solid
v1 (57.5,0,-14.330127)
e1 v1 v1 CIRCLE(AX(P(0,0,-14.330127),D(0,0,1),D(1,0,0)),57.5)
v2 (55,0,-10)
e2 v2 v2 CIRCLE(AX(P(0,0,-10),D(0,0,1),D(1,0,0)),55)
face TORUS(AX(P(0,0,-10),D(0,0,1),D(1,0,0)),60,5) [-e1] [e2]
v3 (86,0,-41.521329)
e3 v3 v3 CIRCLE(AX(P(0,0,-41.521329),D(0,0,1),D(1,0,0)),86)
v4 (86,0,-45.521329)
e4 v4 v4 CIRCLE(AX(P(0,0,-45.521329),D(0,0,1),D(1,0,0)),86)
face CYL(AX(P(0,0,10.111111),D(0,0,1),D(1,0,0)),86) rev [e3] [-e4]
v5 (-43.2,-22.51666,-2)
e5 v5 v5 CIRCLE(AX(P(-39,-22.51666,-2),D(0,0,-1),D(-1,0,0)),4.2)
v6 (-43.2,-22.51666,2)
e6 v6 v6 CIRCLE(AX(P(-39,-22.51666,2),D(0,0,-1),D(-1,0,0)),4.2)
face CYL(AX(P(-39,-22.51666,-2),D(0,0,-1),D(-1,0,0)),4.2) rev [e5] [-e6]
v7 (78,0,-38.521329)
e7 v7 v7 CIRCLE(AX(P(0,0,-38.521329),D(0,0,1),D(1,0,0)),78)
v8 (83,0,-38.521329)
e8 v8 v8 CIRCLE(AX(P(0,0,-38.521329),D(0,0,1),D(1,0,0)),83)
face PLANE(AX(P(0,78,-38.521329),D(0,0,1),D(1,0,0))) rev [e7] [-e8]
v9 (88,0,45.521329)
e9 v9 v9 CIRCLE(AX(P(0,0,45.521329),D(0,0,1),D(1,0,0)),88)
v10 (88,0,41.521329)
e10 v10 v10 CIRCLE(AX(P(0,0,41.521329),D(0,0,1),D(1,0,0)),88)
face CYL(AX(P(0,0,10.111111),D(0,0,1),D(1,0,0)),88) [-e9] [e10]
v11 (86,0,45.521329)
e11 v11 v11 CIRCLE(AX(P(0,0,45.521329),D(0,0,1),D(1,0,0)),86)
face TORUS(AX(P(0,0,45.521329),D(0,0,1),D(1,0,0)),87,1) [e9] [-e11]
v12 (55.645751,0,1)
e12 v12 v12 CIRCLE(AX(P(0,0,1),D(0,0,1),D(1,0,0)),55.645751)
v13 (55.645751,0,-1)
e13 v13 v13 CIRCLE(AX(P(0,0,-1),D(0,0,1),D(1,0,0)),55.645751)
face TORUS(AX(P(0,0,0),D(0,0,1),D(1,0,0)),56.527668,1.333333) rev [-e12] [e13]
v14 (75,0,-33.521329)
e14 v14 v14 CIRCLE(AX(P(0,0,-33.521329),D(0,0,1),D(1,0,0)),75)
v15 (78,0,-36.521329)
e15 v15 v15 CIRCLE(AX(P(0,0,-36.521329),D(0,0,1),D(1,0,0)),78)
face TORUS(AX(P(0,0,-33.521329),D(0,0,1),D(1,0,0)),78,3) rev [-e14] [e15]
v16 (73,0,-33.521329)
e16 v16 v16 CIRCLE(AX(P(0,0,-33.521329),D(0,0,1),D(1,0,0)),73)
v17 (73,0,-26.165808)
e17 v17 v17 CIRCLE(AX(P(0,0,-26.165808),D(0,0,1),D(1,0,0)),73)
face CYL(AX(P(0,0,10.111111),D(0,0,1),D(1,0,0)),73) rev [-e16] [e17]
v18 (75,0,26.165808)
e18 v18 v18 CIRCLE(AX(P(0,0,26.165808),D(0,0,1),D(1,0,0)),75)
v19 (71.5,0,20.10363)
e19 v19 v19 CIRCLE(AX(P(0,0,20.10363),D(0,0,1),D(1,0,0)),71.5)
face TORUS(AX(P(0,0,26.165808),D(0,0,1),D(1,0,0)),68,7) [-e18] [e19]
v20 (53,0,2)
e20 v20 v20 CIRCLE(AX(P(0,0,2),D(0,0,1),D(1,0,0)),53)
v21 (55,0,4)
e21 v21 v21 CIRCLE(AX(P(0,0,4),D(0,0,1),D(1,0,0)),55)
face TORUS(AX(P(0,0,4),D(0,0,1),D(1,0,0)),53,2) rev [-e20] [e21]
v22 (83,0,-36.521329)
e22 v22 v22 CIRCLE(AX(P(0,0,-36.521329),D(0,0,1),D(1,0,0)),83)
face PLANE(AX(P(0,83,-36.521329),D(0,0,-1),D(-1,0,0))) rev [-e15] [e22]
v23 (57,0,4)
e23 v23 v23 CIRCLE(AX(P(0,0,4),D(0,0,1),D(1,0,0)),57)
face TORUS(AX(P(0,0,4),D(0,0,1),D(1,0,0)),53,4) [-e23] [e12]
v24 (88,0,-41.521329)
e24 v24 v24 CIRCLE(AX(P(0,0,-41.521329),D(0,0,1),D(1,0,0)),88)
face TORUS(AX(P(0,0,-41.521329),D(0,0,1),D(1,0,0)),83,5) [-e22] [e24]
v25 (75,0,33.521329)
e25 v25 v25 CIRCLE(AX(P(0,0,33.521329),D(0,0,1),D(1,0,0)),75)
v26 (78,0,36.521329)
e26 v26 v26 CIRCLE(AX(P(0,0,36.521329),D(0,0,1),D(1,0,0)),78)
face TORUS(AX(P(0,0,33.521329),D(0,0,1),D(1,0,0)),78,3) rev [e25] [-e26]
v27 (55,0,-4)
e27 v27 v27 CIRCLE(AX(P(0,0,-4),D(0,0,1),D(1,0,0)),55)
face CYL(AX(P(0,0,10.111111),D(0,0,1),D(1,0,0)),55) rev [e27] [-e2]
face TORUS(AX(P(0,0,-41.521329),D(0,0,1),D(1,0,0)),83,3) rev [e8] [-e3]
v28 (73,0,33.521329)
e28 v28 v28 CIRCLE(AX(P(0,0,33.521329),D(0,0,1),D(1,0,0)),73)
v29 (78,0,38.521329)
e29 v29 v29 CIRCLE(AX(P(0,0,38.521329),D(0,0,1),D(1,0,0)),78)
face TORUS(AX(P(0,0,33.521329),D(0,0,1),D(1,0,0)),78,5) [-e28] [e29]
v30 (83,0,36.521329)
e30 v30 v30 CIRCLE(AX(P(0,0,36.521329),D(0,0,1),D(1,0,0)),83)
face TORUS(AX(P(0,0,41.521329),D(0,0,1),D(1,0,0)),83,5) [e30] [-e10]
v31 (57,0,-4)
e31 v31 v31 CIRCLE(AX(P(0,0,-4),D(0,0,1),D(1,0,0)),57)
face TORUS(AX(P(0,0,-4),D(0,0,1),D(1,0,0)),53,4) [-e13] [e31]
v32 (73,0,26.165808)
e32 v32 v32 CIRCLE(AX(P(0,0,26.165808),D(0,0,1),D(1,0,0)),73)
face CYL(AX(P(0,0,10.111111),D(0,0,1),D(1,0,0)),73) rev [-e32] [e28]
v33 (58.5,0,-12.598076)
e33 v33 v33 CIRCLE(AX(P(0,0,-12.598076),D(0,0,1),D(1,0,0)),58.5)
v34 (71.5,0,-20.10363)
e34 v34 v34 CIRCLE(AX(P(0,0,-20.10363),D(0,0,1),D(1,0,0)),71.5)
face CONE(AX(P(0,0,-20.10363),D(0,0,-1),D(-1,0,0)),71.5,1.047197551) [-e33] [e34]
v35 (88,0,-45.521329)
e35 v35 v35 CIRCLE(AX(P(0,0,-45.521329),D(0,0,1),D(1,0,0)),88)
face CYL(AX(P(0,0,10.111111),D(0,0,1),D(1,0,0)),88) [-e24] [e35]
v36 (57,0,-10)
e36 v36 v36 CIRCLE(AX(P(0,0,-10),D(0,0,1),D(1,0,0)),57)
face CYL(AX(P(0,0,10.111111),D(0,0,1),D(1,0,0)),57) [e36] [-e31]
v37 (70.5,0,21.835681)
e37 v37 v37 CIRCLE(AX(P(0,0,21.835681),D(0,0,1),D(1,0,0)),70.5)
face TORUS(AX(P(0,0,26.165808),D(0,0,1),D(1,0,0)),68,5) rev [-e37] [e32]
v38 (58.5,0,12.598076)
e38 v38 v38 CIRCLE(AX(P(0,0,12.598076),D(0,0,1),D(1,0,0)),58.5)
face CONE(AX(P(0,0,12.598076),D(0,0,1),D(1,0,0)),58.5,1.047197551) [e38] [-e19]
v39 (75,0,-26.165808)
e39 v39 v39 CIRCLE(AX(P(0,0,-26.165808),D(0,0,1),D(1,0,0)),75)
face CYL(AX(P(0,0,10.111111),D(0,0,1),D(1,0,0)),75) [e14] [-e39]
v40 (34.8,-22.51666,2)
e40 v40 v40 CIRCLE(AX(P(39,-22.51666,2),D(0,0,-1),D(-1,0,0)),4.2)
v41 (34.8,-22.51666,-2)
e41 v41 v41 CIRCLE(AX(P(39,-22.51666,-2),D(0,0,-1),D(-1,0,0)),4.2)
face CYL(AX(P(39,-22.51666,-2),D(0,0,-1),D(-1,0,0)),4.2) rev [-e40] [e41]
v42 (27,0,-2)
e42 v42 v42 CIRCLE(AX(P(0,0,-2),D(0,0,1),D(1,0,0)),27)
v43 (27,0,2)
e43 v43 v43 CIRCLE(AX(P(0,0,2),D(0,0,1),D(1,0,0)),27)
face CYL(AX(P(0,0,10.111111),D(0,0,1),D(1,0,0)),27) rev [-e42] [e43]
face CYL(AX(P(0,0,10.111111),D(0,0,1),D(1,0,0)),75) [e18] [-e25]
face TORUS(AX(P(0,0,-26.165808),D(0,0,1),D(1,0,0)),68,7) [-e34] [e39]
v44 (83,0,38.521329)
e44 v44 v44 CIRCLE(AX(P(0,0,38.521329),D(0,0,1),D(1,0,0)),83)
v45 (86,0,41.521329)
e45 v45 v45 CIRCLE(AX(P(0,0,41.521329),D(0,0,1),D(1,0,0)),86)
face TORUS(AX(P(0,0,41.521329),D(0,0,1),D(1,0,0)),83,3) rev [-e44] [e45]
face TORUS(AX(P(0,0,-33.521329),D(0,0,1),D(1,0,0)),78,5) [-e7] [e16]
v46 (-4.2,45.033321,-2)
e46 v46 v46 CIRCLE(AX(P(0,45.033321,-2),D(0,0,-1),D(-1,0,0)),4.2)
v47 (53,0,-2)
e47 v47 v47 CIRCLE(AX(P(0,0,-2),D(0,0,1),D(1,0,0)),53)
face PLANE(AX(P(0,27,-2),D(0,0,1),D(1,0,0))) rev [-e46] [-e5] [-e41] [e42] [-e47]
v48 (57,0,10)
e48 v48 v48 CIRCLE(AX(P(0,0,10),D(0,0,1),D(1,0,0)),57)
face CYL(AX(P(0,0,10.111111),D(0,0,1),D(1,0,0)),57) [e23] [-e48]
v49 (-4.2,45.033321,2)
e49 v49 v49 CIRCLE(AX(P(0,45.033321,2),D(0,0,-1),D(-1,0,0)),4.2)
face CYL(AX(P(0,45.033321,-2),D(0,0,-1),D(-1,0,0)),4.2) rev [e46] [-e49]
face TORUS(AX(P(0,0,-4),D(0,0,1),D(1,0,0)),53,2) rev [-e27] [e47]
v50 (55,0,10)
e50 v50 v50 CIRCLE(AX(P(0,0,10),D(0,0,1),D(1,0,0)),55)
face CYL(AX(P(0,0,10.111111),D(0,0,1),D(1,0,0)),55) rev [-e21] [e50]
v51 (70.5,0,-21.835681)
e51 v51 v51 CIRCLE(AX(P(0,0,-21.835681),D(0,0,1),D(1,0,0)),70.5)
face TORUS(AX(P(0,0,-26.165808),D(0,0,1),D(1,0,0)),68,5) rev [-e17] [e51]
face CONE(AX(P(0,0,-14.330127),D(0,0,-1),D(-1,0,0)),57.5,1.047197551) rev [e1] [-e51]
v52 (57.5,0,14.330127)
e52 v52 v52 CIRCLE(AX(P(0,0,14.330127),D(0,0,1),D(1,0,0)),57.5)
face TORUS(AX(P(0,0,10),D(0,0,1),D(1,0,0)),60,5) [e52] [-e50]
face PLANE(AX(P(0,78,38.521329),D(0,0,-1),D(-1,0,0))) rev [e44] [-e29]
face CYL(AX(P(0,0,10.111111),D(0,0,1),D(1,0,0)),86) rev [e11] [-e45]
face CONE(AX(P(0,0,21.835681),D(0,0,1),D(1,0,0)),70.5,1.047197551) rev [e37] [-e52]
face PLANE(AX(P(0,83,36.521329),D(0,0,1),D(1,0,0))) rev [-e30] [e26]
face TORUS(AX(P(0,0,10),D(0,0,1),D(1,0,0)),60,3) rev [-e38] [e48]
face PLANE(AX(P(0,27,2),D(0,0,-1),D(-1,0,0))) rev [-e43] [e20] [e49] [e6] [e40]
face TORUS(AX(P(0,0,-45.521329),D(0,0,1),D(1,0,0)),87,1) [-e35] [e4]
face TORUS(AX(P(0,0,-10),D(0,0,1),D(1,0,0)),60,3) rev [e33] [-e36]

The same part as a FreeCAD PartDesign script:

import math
import FreeCAD as App
import Part
import Sketcher
Q = App.Units.Quantity

doc = App.newDocument("Part")
params = doc.addObject("Spreadsheet::Sheet", "Params")
for row, (alias, value) in enumerate([
    ("sketch1_radius", "2 mm"),
    ("sketch1_radius2", "5 mm"),
    ("sketch1_radius3", "3 mm"),
    ("sketch1_width", "26 mm"),
    ("sketch1_width2", "5 mm"),
    ("revolution_angle", "360 deg"),
    ("sketch2_diameter", "8.4 mm"),
    ("hole_diameter", "8.4 mm"),
], start=1):
    params.set(f"A{row}", alias)
    params.set(f"B{row}", "=" + value)
    params.setAlias(f"B{row}", alias)

body = doc.addObject("PartDesign::Body", "Body")

sketch1 = body.newObject("Sketcher::SketchObject", "Sketch")
sketch1.AttachmentSupport = (doc.getObject("YZ_Plane"), [""])
sketch1.MapMode = "FlatFace"
sketch1.addGeometry([
    Part.LineSegment(App.Vector(55, 10, 0), App.Vector(55, 4, 0)),
    Part.ArcOfCircle(Part.Circle(App.Vector(53, 4, 0), App.Vector(0, 0, 1), 2), math.radians(-90), math.radians(0)),
    Part.LineSegment(App.Vector(53, 2, 0), App.Vector(27, 2, 0)),
    Part.LineSegment(App.Vector(27, 2, 0), App.Vector(27, -2, 0)),
    Part.LineSegment(App.Vector(27, -2, 0), App.Vector(53, -2, 0)),
    Part.ArcOfCircle(Part.Circle(App.Vector(53, -4, 0), App.Vector(0, 0, 1), 2), math.radians(0), math.radians(90)),
    Part.LineSegment(App.Vector(55, -4, 0), App.Vector(55, -10, 0)),
    Part.ArcOfCircle(Part.Circle(App.Vector(60, -10, 0), App.Vector(0, 0, 1), 5), math.radians(180), math.radians(240)),
    Part.LineSegment(App.Vector(57.5, -14.3, 0), App.Vector(70.5, -21.8, 0)),
    Part.ArcOfCircle(Part.Circle(App.Vector(68, -26.2, 0), App.Vector(0, 0, 1), 5), math.radians(0), math.radians(60)),
    Part.LineSegment(App.Vector(73, -26.2, 0), App.Vector(73, -33.5, 0)),
    Part.ArcOfCircle(Part.Circle(App.Vector(78, -33.5, 0), App.Vector(0, 0, 1), 5), math.radians(180), math.radians(270)),
    Part.LineSegment(App.Vector(78, -38.5, 0), App.Vector(83, -38.5, 0)),
    Part.ArcOfCircle(Part.Circle(App.Vector(83, -41.5, 0), App.Vector(0, 0, 1), 3), math.radians(0), math.radians(90)),
    Part.LineSegment(App.Vector(86, -41.5, 0), App.Vector(86, -45.5, 0)),
    Part.ArcOfCircle(Part.Circle(App.Vector(87, -45.5, 0), App.Vector(0, 0, 1), 1), math.radians(180), math.radians(360)),
    Part.LineSegment(App.Vector(88, -45.5, 0), App.Vector(88, -41.5, 0)),
    Part.ArcOfCircle(Part.Circle(App.Vector(83, -41.5, 0), App.Vector(0, 0, 1), 5), math.radians(0), math.radians(90)),
    Part.LineSegment(App.Vector(83, -36.5, 0), App.Vector(78, -36.5, 0)),
    Part.ArcOfCircle(Part.Circle(App.Vector(78, -33.5, 0), App.Vector(0, 0, 1), 3), math.radians(180), math.radians(270)),
    Part.LineSegment(App.Vector(75, -33.5, 0), App.Vector(75, -26.2, 0)),
    Part.ArcOfCircle(Part.Circle(App.Vector(68, -26.2, 0), App.Vector(0, 0, 1), 7), math.radians(0), math.radians(60)),
    Part.LineSegment(App.Vector(71.5, -20.1, 0), App.Vector(58.5, -12.6, 0)),
    Part.ArcOfCircle(Part.Circle(App.Vector(60, -10, 0), App.Vector(0, 0, 1), 3), math.radians(-180), math.radians(-120)),
    Part.LineSegment(App.Vector(57, -10, 0), App.Vector(57, -4, 0)),
    Part.ArcOfCircle(Part.Circle(App.Vector(53, -4, 0), App.Vector(0, 0, 1), 4), math.radians(0), math.radians(49)),
    Part.ArcOfCircle(Part.Circle(App.Vector(56.5, 0, 0), App.Vector(0, 0, 1), 1.3), math.radians(131), math.radians(229)),
    Part.ArcOfCircle(Part.Circle(App.Vector(53, 4, 0), App.Vector(0, 0, 1), 4), math.radians(-49), math.radians(0)),
    Part.LineSegment(App.Vector(57, 4, 0), App.Vector(57, 10, 0)),
    Part.ArcOfCircle(Part.Circle(App.Vector(60, 10, 0), App.Vector(0, 0, 1), 3), math.radians(120), math.radians(180)),
    Part.LineSegment(App.Vector(58.5, 12.6, 0), App.Vector(71.5, 20.1, 0)),
    Part.ArcOfCircle(Part.Circle(App.Vector(68, 26.2, 0), App.Vector(0, 0, 1), 7), math.radians(-60), math.radians(0)),
    Part.LineSegment(App.Vector(75, 26.2, 0), App.Vector(75, 33.5, 0)),
    Part.ArcOfCircle(Part.Circle(App.Vector(78, 33.5, 0), App.Vector(0, 0, 1), 3), math.radians(90), math.radians(180)),
    Part.LineSegment(App.Vector(78, 36.5, 0), App.Vector(83, 36.5, 0)),
    Part.ArcOfCircle(Part.Circle(App.Vector(83, 41.5, 0), App.Vector(0, 0, 1), 5), math.radians(-90), math.radians(0)),
    Part.LineSegment(App.Vector(88, 41.5, 0), App.Vector(88, 45.5, 0)),
    Part.ArcOfCircle(Part.Circle(App.Vector(87, 45.5, 0), App.Vector(0, 0, 1), 1), math.radians(0), math.radians(180)),
    Part.LineSegment(App.Vector(86, 45.5, 0), App.Vector(86, 41.5, 0)),
    Part.ArcOfCircle(Part.Circle(App.Vector(83, 41.5, 0), App.Vector(0, 0, 1), 3), math.radians(-90), math.radians(0)),
    Part.LineSegment(App.Vector(83, 38.5, 0), App.Vector(78, 38.5, 0)),
    Part.ArcOfCircle(Part.Circle(App.Vector(78, 33.5, 0), App.Vector(0, 0, 1), 5), math.radians(90), math.radians(180)),
    Part.LineSegment(App.Vector(73, 33.5, 0), App.Vector(73, 26.2, 0)),
    Part.ArcOfCircle(Part.Circle(App.Vector(68, 26.2, 0), App.Vector(0, 0, 1), 5), math.radians(-60), math.radians(0)),
    Part.LineSegment(App.Vector(70.5, 21.8, 0), App.Vector(57.5, 14.3, 0)),
    Part.ArcOfCircle(Part.Circle(App.Vector(60, 10, 0), App.Vector(0, 0, 1), 5), math.radians(120), math.radians(180)),
], False)
sketch1.addConstraint([
    Sketcher.Constraint("Tangent", 0, 2, 1, 2),
    Sketcher.Constraint("Tangent", 1, 1, 2, 1),
    Sketcher.Constraint("Coincident", 2, 2, 3, 1),
    Sketcher.Constraint("Coincident", 3, 2, 4, 1),
    Sketcher.Constraint("Tangent", 4, 2, 5, 2),
    Sketcher.Constraint("Tangent", 5, 1, 6, 1),
    Sketcher.Constraint("Tangent", 6, 2, 7, 1),
    Sketcher.Constraint("Tangent", 7, 2, 8, 1),
    Sketcher.Constraint("Tangent", 8, 2, 9, 2),
    Sketcher.Constraint("Tangent", 9, 1, 10, 1),
    Sketcher.Constraint("Tangent", 10, 2, 11, 1),
    Sketcher.Constraint("Tangent", 11, 2, 12, 1),
    Sketcher.Constraint("Tangent", 12, 2, 13, 2),
    Sketcher.Constraint("Tangent", 13, 1, 14, 1),
    Sketcher.Constraint("Tangent", 14, 2, 15, 1),
    Sketcher.Constraint("Tangent", 15, 2, 16, 1),
    Sketcher.Constraint("Tangent", 16, 2, 17, 1),
    Sketcher.Constraint("Tangent", 17, 2, 18, 1),
    Sketcher.Constraint("Tangent", 18, 2, 19, 2),
    Sketcher.Constraint("Tangent", 19, 1, 20, 1),
    Sketcher.Constraint("Tangent", 20, 2, 21, 1),
    Sketcher.Constraint("Tangent", 21, 2, 22, 1),
    Sketcher.Constraint("Tangent", 22, 2, 23, 2),
    Sketcher.Constraint("Tangent", 23, 1, 24, 1),
    Sketcher.Constraint("Tangent", 24, 2, 25, 1),
    Sketcher.Constraint("Tangent", 25, 2, 26, 2),
    Sketcher.Constraint("Tangent", 26, 1, 27, 1),
    Sketcher.Constraint("Tangent", 27, 2, 28, 1),
    Sketcher.Constraint("Tangent", 28, 2, 29, 2),
    Sketcher.Constraint("Tangent", 29, 1, 30, 1),
    Sketcher.Constraint("Tangent", 30, 2, 31, 1),
    Sketcher.Constraint("Tangent", 31, 2, 32, 1),
    Sketcher.Constraint("Tangent", 32, 2, 33, 2),
    Sketcher.Constraint("Tangent", 33, 1, 34, 1),
    Sketcher.Constraint("Tangent", 34, 2, 35, 1),
    Sketcher.Constraint("Tangent", 35, 2, 36, 1),
    Sketcher.Constraint("Tangent", 36, 2, 37, 1),
    Sketcher.Constraint("Tangent", 37, 2, 38, 1),
    Sketcher.Constraint("Tangent", 38, 2, 39, 2),
    Sketcher.Constraint("Tangent", 39, 1, 40, 1),
    Sketcher.Constraint("Tangent", 40, 2, 41, 1),
    Sketcher.Constraint("Tangent", 41, 2, 42, 1),
    Sketcher.Constraint("Tangent", 42, 2, 43, 2),
    Sketcher.Constraint("Tangent", 43, 1, 44, 1),
    Sketcher.Constraint("Tangent", 44, 2, 45, 1),
    Sketcher.Constraint("Tangent", 45, 2, 0, 1),
    Sketcher.Constraint("Vertical", 0),
    Sketcher.Constraint("Horizontal", 2),
    Sketcher.Constraint("Vertical", 3),
    Sketcher.Constraint("Horizontal", 4),
    Sketcher.Constraint("Vertical", 6),
    Sketcher.Constraint("Vertical", 10),
    Sketcher.Constraint("Horizontal", 12),
    Sketcher.Constraint("Vertical", 14),
    Sketcher.Constraint("Vertical", 16),
    Sketcher.Constraint("Horizontal", 18),
    Sketcher.Constraint("Vertical", 20),
    Sketcher.Constraint("Vertical", 24),
    Sketcher.Constraint("Vertical", 28),
    Sketcher.Constraint("Vertical", 32),
    Sketcher.Constraint("Horizontal", 34),
    Sketcher.Constraint("Vertical", 36),
    Sketcher.Constraint("Vertical", 38),
    Sketcher.Constraint("Horizontal", 40),
    Sketcher.Constraint("Vertical", 42),
    Sketcher.Constraint("Coincident", 17, 3, 13, 3),
    Sketcher.Constraint("Coincident", 19, 3, 11, 3),
    Sketcher.Constraint("Coincident", 21, 3, 9, 3),
    Sketcher.Constraint("Coincident", 23, 3, 7, 3),
    Sketcher.Constraint("Coincident", 25, 3, 5, 3),
    Sketcher.Constraint("Coincident", 27, 3, 1, 3),
    Sketcher.Constraint("Coincident", 39, 3, 35, 3),
    Sketcher.Constraint("Coincident", 41, 3, 33, 3),
    Sketcher.Constraint("Coincident", 43, 3, 31, 3),
    Sketcher.Constraint("Coincident", 45, 3, 29, 3),
    Sketcher.Constraint("Equal", 1, 5),
    Sketcher.Constraint("Equal", 7, 9),
    Sketcher.Constraint("Equal", 9, 11),
    Sketcher.Constraint("Equal", 11, 17),
    Sketcher.Constraint("Equal", 19, 23),
    Sketcher.Constraint("Equal", 25, 27),
    Sketcher.Constraint("Equal", 23, 29),
    Sketcher.Constraint("Equal", 21, 31),
    Sketcher.Constraint("Equal", 29, 33),
    Sketcher.Constraint("Equal", 17, 35),
    Sketcher.Constraint("Equal", 15, 37),
    Sketcher.Constraint("Symmetric", 1, 3, 5, 3, -1),
    Sketcher.Constraint("Symmetric", 9, 3, 31, 3, -1),
    Sketcher.Constraint("Symmetric", 13, 3, 35, 3, -1),
    Sketcher.Constraint("Vertical", 22, 2, 29, 1),
    Sketcher.Constraint("Equal", 3, 14),
    Sketcher.Constraint("Equal", 16, 36),
    Sketcher.Constraint("Radius", 1, Q("2 mm")),
    Sketcher.Constraint("Radius", 7, Q("5 mm")),
    Sketcher.Constraint("Radius", 13, Q("3 mm")),
    Sketcher.Constraint("DistanceX", 2, 2, 2, 1, Q("26 mm")),
    Sketcher.Constraint("DistanceX", 12, 1, 12, 2, Q("5 mm")),
    Sketcher.Constraint("DistanceY", 0, 2, 0, 1, Q("6 mm")),
    Sketcher.Constraint("DistanceY", 3, 2, 3, 1, Q("4 mm")),
    Sketcher.Constraint("Angle", 8, Q("-30 deg")),
    Sketcher.Constraint("DistanceX", -1, 1, 1, 3, Q("53 mm")),
    Sketcher.Constraint("DistanceX", -1, 1, 9, 3, Q("68 mm")),
    Sketcher.Constraint("DistanceY", 25, 2, -1, 1, Q("1 mm")),
    Sketcher.Constraint("DistanceY", 10, 2, 10, 1, Q("7.355522 mm")),
])
sketch1.setExpression("Constraints[92]", "Params.sketch1_radius")
sketch1.setExpression("Constraints[93]", "Params.sketch1_radius2")
sketch1.setExpression("Constraints[94]", "Params.sketch1_radius3")
sketch1.setExpression("Constraints[95]", "Params.sketch1_width")
sketch1.setExpression("Constraints[96]", "Params.sketch1_width2")
revolution = body.newObject("PartDesign::Revolution", "Revolution")
revolution.Profile = sketch1
revolution.ReferenceAxis = (sketch1, ["V_Axis"])
revolution.setExpression("Angle", "Params.revolution_angle")

sketch2 = body.newObject("Sketcher::SketchObject", "Sketch001")
sketch2.AttachmentSupport = (doc.getObject("XY_Plane"), [""])
sketch2.MapMode = "FlatFace"
sketch2.AttachmentOffset = App.Placement(App.Vector(0, 0, -2), App.Rotation())
sketch2.addGeometry([
    Part.Circle(App.Vector(0, 45, 0), App.Vector(0, 0, 1), 4.2),
    Part.Circle(App.Vector(39, -22.5, 0), App.Vector(0, 0, 1), 4.2),
    Part.Circle(App.Vector(-39, -22.5, 0), App.Vector(0, 0, 1), 4.2),
], False)
sketch2.addConstraint([
    Sketcher.Constraint("Equal", 0, 1),
    Sketcher.Constraint("Equal", 1, 2),
    Sketcher.Constraint("Symmetric", 1, 3, 2, 3, -2),
    Sketcher.Constraint("PointOnObject", 0, 3, -2),
    Sketcher.Constraint("Diameter", 0, Q("8.4 mm")),
    Sketcher.Constraint("DistanceX", -1, 1, 1, 3, Q("39 mm")),
    Sketcher.Constraint("DistanceY", -1, 1, 0, 3, Q("45.033321 mm")),
    Sketcher.Constraint("DistanceY", 1, 3, -1, 1, Q("22.51666 mm")),
])
sketch2.setExpression("Constraints[4]", "Params.sketch2_diameter")
doc.recompute()
hole = body.newObject("PartDesign::Hole", "Hole")
hole.Profile = sketch2
hole.ThreadType = "None"
hole.setExpression("Diameter", "Params.hole_diameter")
hole.DepthType = "ThroughAll"
hole.Reversed = True

doc.recompute()
